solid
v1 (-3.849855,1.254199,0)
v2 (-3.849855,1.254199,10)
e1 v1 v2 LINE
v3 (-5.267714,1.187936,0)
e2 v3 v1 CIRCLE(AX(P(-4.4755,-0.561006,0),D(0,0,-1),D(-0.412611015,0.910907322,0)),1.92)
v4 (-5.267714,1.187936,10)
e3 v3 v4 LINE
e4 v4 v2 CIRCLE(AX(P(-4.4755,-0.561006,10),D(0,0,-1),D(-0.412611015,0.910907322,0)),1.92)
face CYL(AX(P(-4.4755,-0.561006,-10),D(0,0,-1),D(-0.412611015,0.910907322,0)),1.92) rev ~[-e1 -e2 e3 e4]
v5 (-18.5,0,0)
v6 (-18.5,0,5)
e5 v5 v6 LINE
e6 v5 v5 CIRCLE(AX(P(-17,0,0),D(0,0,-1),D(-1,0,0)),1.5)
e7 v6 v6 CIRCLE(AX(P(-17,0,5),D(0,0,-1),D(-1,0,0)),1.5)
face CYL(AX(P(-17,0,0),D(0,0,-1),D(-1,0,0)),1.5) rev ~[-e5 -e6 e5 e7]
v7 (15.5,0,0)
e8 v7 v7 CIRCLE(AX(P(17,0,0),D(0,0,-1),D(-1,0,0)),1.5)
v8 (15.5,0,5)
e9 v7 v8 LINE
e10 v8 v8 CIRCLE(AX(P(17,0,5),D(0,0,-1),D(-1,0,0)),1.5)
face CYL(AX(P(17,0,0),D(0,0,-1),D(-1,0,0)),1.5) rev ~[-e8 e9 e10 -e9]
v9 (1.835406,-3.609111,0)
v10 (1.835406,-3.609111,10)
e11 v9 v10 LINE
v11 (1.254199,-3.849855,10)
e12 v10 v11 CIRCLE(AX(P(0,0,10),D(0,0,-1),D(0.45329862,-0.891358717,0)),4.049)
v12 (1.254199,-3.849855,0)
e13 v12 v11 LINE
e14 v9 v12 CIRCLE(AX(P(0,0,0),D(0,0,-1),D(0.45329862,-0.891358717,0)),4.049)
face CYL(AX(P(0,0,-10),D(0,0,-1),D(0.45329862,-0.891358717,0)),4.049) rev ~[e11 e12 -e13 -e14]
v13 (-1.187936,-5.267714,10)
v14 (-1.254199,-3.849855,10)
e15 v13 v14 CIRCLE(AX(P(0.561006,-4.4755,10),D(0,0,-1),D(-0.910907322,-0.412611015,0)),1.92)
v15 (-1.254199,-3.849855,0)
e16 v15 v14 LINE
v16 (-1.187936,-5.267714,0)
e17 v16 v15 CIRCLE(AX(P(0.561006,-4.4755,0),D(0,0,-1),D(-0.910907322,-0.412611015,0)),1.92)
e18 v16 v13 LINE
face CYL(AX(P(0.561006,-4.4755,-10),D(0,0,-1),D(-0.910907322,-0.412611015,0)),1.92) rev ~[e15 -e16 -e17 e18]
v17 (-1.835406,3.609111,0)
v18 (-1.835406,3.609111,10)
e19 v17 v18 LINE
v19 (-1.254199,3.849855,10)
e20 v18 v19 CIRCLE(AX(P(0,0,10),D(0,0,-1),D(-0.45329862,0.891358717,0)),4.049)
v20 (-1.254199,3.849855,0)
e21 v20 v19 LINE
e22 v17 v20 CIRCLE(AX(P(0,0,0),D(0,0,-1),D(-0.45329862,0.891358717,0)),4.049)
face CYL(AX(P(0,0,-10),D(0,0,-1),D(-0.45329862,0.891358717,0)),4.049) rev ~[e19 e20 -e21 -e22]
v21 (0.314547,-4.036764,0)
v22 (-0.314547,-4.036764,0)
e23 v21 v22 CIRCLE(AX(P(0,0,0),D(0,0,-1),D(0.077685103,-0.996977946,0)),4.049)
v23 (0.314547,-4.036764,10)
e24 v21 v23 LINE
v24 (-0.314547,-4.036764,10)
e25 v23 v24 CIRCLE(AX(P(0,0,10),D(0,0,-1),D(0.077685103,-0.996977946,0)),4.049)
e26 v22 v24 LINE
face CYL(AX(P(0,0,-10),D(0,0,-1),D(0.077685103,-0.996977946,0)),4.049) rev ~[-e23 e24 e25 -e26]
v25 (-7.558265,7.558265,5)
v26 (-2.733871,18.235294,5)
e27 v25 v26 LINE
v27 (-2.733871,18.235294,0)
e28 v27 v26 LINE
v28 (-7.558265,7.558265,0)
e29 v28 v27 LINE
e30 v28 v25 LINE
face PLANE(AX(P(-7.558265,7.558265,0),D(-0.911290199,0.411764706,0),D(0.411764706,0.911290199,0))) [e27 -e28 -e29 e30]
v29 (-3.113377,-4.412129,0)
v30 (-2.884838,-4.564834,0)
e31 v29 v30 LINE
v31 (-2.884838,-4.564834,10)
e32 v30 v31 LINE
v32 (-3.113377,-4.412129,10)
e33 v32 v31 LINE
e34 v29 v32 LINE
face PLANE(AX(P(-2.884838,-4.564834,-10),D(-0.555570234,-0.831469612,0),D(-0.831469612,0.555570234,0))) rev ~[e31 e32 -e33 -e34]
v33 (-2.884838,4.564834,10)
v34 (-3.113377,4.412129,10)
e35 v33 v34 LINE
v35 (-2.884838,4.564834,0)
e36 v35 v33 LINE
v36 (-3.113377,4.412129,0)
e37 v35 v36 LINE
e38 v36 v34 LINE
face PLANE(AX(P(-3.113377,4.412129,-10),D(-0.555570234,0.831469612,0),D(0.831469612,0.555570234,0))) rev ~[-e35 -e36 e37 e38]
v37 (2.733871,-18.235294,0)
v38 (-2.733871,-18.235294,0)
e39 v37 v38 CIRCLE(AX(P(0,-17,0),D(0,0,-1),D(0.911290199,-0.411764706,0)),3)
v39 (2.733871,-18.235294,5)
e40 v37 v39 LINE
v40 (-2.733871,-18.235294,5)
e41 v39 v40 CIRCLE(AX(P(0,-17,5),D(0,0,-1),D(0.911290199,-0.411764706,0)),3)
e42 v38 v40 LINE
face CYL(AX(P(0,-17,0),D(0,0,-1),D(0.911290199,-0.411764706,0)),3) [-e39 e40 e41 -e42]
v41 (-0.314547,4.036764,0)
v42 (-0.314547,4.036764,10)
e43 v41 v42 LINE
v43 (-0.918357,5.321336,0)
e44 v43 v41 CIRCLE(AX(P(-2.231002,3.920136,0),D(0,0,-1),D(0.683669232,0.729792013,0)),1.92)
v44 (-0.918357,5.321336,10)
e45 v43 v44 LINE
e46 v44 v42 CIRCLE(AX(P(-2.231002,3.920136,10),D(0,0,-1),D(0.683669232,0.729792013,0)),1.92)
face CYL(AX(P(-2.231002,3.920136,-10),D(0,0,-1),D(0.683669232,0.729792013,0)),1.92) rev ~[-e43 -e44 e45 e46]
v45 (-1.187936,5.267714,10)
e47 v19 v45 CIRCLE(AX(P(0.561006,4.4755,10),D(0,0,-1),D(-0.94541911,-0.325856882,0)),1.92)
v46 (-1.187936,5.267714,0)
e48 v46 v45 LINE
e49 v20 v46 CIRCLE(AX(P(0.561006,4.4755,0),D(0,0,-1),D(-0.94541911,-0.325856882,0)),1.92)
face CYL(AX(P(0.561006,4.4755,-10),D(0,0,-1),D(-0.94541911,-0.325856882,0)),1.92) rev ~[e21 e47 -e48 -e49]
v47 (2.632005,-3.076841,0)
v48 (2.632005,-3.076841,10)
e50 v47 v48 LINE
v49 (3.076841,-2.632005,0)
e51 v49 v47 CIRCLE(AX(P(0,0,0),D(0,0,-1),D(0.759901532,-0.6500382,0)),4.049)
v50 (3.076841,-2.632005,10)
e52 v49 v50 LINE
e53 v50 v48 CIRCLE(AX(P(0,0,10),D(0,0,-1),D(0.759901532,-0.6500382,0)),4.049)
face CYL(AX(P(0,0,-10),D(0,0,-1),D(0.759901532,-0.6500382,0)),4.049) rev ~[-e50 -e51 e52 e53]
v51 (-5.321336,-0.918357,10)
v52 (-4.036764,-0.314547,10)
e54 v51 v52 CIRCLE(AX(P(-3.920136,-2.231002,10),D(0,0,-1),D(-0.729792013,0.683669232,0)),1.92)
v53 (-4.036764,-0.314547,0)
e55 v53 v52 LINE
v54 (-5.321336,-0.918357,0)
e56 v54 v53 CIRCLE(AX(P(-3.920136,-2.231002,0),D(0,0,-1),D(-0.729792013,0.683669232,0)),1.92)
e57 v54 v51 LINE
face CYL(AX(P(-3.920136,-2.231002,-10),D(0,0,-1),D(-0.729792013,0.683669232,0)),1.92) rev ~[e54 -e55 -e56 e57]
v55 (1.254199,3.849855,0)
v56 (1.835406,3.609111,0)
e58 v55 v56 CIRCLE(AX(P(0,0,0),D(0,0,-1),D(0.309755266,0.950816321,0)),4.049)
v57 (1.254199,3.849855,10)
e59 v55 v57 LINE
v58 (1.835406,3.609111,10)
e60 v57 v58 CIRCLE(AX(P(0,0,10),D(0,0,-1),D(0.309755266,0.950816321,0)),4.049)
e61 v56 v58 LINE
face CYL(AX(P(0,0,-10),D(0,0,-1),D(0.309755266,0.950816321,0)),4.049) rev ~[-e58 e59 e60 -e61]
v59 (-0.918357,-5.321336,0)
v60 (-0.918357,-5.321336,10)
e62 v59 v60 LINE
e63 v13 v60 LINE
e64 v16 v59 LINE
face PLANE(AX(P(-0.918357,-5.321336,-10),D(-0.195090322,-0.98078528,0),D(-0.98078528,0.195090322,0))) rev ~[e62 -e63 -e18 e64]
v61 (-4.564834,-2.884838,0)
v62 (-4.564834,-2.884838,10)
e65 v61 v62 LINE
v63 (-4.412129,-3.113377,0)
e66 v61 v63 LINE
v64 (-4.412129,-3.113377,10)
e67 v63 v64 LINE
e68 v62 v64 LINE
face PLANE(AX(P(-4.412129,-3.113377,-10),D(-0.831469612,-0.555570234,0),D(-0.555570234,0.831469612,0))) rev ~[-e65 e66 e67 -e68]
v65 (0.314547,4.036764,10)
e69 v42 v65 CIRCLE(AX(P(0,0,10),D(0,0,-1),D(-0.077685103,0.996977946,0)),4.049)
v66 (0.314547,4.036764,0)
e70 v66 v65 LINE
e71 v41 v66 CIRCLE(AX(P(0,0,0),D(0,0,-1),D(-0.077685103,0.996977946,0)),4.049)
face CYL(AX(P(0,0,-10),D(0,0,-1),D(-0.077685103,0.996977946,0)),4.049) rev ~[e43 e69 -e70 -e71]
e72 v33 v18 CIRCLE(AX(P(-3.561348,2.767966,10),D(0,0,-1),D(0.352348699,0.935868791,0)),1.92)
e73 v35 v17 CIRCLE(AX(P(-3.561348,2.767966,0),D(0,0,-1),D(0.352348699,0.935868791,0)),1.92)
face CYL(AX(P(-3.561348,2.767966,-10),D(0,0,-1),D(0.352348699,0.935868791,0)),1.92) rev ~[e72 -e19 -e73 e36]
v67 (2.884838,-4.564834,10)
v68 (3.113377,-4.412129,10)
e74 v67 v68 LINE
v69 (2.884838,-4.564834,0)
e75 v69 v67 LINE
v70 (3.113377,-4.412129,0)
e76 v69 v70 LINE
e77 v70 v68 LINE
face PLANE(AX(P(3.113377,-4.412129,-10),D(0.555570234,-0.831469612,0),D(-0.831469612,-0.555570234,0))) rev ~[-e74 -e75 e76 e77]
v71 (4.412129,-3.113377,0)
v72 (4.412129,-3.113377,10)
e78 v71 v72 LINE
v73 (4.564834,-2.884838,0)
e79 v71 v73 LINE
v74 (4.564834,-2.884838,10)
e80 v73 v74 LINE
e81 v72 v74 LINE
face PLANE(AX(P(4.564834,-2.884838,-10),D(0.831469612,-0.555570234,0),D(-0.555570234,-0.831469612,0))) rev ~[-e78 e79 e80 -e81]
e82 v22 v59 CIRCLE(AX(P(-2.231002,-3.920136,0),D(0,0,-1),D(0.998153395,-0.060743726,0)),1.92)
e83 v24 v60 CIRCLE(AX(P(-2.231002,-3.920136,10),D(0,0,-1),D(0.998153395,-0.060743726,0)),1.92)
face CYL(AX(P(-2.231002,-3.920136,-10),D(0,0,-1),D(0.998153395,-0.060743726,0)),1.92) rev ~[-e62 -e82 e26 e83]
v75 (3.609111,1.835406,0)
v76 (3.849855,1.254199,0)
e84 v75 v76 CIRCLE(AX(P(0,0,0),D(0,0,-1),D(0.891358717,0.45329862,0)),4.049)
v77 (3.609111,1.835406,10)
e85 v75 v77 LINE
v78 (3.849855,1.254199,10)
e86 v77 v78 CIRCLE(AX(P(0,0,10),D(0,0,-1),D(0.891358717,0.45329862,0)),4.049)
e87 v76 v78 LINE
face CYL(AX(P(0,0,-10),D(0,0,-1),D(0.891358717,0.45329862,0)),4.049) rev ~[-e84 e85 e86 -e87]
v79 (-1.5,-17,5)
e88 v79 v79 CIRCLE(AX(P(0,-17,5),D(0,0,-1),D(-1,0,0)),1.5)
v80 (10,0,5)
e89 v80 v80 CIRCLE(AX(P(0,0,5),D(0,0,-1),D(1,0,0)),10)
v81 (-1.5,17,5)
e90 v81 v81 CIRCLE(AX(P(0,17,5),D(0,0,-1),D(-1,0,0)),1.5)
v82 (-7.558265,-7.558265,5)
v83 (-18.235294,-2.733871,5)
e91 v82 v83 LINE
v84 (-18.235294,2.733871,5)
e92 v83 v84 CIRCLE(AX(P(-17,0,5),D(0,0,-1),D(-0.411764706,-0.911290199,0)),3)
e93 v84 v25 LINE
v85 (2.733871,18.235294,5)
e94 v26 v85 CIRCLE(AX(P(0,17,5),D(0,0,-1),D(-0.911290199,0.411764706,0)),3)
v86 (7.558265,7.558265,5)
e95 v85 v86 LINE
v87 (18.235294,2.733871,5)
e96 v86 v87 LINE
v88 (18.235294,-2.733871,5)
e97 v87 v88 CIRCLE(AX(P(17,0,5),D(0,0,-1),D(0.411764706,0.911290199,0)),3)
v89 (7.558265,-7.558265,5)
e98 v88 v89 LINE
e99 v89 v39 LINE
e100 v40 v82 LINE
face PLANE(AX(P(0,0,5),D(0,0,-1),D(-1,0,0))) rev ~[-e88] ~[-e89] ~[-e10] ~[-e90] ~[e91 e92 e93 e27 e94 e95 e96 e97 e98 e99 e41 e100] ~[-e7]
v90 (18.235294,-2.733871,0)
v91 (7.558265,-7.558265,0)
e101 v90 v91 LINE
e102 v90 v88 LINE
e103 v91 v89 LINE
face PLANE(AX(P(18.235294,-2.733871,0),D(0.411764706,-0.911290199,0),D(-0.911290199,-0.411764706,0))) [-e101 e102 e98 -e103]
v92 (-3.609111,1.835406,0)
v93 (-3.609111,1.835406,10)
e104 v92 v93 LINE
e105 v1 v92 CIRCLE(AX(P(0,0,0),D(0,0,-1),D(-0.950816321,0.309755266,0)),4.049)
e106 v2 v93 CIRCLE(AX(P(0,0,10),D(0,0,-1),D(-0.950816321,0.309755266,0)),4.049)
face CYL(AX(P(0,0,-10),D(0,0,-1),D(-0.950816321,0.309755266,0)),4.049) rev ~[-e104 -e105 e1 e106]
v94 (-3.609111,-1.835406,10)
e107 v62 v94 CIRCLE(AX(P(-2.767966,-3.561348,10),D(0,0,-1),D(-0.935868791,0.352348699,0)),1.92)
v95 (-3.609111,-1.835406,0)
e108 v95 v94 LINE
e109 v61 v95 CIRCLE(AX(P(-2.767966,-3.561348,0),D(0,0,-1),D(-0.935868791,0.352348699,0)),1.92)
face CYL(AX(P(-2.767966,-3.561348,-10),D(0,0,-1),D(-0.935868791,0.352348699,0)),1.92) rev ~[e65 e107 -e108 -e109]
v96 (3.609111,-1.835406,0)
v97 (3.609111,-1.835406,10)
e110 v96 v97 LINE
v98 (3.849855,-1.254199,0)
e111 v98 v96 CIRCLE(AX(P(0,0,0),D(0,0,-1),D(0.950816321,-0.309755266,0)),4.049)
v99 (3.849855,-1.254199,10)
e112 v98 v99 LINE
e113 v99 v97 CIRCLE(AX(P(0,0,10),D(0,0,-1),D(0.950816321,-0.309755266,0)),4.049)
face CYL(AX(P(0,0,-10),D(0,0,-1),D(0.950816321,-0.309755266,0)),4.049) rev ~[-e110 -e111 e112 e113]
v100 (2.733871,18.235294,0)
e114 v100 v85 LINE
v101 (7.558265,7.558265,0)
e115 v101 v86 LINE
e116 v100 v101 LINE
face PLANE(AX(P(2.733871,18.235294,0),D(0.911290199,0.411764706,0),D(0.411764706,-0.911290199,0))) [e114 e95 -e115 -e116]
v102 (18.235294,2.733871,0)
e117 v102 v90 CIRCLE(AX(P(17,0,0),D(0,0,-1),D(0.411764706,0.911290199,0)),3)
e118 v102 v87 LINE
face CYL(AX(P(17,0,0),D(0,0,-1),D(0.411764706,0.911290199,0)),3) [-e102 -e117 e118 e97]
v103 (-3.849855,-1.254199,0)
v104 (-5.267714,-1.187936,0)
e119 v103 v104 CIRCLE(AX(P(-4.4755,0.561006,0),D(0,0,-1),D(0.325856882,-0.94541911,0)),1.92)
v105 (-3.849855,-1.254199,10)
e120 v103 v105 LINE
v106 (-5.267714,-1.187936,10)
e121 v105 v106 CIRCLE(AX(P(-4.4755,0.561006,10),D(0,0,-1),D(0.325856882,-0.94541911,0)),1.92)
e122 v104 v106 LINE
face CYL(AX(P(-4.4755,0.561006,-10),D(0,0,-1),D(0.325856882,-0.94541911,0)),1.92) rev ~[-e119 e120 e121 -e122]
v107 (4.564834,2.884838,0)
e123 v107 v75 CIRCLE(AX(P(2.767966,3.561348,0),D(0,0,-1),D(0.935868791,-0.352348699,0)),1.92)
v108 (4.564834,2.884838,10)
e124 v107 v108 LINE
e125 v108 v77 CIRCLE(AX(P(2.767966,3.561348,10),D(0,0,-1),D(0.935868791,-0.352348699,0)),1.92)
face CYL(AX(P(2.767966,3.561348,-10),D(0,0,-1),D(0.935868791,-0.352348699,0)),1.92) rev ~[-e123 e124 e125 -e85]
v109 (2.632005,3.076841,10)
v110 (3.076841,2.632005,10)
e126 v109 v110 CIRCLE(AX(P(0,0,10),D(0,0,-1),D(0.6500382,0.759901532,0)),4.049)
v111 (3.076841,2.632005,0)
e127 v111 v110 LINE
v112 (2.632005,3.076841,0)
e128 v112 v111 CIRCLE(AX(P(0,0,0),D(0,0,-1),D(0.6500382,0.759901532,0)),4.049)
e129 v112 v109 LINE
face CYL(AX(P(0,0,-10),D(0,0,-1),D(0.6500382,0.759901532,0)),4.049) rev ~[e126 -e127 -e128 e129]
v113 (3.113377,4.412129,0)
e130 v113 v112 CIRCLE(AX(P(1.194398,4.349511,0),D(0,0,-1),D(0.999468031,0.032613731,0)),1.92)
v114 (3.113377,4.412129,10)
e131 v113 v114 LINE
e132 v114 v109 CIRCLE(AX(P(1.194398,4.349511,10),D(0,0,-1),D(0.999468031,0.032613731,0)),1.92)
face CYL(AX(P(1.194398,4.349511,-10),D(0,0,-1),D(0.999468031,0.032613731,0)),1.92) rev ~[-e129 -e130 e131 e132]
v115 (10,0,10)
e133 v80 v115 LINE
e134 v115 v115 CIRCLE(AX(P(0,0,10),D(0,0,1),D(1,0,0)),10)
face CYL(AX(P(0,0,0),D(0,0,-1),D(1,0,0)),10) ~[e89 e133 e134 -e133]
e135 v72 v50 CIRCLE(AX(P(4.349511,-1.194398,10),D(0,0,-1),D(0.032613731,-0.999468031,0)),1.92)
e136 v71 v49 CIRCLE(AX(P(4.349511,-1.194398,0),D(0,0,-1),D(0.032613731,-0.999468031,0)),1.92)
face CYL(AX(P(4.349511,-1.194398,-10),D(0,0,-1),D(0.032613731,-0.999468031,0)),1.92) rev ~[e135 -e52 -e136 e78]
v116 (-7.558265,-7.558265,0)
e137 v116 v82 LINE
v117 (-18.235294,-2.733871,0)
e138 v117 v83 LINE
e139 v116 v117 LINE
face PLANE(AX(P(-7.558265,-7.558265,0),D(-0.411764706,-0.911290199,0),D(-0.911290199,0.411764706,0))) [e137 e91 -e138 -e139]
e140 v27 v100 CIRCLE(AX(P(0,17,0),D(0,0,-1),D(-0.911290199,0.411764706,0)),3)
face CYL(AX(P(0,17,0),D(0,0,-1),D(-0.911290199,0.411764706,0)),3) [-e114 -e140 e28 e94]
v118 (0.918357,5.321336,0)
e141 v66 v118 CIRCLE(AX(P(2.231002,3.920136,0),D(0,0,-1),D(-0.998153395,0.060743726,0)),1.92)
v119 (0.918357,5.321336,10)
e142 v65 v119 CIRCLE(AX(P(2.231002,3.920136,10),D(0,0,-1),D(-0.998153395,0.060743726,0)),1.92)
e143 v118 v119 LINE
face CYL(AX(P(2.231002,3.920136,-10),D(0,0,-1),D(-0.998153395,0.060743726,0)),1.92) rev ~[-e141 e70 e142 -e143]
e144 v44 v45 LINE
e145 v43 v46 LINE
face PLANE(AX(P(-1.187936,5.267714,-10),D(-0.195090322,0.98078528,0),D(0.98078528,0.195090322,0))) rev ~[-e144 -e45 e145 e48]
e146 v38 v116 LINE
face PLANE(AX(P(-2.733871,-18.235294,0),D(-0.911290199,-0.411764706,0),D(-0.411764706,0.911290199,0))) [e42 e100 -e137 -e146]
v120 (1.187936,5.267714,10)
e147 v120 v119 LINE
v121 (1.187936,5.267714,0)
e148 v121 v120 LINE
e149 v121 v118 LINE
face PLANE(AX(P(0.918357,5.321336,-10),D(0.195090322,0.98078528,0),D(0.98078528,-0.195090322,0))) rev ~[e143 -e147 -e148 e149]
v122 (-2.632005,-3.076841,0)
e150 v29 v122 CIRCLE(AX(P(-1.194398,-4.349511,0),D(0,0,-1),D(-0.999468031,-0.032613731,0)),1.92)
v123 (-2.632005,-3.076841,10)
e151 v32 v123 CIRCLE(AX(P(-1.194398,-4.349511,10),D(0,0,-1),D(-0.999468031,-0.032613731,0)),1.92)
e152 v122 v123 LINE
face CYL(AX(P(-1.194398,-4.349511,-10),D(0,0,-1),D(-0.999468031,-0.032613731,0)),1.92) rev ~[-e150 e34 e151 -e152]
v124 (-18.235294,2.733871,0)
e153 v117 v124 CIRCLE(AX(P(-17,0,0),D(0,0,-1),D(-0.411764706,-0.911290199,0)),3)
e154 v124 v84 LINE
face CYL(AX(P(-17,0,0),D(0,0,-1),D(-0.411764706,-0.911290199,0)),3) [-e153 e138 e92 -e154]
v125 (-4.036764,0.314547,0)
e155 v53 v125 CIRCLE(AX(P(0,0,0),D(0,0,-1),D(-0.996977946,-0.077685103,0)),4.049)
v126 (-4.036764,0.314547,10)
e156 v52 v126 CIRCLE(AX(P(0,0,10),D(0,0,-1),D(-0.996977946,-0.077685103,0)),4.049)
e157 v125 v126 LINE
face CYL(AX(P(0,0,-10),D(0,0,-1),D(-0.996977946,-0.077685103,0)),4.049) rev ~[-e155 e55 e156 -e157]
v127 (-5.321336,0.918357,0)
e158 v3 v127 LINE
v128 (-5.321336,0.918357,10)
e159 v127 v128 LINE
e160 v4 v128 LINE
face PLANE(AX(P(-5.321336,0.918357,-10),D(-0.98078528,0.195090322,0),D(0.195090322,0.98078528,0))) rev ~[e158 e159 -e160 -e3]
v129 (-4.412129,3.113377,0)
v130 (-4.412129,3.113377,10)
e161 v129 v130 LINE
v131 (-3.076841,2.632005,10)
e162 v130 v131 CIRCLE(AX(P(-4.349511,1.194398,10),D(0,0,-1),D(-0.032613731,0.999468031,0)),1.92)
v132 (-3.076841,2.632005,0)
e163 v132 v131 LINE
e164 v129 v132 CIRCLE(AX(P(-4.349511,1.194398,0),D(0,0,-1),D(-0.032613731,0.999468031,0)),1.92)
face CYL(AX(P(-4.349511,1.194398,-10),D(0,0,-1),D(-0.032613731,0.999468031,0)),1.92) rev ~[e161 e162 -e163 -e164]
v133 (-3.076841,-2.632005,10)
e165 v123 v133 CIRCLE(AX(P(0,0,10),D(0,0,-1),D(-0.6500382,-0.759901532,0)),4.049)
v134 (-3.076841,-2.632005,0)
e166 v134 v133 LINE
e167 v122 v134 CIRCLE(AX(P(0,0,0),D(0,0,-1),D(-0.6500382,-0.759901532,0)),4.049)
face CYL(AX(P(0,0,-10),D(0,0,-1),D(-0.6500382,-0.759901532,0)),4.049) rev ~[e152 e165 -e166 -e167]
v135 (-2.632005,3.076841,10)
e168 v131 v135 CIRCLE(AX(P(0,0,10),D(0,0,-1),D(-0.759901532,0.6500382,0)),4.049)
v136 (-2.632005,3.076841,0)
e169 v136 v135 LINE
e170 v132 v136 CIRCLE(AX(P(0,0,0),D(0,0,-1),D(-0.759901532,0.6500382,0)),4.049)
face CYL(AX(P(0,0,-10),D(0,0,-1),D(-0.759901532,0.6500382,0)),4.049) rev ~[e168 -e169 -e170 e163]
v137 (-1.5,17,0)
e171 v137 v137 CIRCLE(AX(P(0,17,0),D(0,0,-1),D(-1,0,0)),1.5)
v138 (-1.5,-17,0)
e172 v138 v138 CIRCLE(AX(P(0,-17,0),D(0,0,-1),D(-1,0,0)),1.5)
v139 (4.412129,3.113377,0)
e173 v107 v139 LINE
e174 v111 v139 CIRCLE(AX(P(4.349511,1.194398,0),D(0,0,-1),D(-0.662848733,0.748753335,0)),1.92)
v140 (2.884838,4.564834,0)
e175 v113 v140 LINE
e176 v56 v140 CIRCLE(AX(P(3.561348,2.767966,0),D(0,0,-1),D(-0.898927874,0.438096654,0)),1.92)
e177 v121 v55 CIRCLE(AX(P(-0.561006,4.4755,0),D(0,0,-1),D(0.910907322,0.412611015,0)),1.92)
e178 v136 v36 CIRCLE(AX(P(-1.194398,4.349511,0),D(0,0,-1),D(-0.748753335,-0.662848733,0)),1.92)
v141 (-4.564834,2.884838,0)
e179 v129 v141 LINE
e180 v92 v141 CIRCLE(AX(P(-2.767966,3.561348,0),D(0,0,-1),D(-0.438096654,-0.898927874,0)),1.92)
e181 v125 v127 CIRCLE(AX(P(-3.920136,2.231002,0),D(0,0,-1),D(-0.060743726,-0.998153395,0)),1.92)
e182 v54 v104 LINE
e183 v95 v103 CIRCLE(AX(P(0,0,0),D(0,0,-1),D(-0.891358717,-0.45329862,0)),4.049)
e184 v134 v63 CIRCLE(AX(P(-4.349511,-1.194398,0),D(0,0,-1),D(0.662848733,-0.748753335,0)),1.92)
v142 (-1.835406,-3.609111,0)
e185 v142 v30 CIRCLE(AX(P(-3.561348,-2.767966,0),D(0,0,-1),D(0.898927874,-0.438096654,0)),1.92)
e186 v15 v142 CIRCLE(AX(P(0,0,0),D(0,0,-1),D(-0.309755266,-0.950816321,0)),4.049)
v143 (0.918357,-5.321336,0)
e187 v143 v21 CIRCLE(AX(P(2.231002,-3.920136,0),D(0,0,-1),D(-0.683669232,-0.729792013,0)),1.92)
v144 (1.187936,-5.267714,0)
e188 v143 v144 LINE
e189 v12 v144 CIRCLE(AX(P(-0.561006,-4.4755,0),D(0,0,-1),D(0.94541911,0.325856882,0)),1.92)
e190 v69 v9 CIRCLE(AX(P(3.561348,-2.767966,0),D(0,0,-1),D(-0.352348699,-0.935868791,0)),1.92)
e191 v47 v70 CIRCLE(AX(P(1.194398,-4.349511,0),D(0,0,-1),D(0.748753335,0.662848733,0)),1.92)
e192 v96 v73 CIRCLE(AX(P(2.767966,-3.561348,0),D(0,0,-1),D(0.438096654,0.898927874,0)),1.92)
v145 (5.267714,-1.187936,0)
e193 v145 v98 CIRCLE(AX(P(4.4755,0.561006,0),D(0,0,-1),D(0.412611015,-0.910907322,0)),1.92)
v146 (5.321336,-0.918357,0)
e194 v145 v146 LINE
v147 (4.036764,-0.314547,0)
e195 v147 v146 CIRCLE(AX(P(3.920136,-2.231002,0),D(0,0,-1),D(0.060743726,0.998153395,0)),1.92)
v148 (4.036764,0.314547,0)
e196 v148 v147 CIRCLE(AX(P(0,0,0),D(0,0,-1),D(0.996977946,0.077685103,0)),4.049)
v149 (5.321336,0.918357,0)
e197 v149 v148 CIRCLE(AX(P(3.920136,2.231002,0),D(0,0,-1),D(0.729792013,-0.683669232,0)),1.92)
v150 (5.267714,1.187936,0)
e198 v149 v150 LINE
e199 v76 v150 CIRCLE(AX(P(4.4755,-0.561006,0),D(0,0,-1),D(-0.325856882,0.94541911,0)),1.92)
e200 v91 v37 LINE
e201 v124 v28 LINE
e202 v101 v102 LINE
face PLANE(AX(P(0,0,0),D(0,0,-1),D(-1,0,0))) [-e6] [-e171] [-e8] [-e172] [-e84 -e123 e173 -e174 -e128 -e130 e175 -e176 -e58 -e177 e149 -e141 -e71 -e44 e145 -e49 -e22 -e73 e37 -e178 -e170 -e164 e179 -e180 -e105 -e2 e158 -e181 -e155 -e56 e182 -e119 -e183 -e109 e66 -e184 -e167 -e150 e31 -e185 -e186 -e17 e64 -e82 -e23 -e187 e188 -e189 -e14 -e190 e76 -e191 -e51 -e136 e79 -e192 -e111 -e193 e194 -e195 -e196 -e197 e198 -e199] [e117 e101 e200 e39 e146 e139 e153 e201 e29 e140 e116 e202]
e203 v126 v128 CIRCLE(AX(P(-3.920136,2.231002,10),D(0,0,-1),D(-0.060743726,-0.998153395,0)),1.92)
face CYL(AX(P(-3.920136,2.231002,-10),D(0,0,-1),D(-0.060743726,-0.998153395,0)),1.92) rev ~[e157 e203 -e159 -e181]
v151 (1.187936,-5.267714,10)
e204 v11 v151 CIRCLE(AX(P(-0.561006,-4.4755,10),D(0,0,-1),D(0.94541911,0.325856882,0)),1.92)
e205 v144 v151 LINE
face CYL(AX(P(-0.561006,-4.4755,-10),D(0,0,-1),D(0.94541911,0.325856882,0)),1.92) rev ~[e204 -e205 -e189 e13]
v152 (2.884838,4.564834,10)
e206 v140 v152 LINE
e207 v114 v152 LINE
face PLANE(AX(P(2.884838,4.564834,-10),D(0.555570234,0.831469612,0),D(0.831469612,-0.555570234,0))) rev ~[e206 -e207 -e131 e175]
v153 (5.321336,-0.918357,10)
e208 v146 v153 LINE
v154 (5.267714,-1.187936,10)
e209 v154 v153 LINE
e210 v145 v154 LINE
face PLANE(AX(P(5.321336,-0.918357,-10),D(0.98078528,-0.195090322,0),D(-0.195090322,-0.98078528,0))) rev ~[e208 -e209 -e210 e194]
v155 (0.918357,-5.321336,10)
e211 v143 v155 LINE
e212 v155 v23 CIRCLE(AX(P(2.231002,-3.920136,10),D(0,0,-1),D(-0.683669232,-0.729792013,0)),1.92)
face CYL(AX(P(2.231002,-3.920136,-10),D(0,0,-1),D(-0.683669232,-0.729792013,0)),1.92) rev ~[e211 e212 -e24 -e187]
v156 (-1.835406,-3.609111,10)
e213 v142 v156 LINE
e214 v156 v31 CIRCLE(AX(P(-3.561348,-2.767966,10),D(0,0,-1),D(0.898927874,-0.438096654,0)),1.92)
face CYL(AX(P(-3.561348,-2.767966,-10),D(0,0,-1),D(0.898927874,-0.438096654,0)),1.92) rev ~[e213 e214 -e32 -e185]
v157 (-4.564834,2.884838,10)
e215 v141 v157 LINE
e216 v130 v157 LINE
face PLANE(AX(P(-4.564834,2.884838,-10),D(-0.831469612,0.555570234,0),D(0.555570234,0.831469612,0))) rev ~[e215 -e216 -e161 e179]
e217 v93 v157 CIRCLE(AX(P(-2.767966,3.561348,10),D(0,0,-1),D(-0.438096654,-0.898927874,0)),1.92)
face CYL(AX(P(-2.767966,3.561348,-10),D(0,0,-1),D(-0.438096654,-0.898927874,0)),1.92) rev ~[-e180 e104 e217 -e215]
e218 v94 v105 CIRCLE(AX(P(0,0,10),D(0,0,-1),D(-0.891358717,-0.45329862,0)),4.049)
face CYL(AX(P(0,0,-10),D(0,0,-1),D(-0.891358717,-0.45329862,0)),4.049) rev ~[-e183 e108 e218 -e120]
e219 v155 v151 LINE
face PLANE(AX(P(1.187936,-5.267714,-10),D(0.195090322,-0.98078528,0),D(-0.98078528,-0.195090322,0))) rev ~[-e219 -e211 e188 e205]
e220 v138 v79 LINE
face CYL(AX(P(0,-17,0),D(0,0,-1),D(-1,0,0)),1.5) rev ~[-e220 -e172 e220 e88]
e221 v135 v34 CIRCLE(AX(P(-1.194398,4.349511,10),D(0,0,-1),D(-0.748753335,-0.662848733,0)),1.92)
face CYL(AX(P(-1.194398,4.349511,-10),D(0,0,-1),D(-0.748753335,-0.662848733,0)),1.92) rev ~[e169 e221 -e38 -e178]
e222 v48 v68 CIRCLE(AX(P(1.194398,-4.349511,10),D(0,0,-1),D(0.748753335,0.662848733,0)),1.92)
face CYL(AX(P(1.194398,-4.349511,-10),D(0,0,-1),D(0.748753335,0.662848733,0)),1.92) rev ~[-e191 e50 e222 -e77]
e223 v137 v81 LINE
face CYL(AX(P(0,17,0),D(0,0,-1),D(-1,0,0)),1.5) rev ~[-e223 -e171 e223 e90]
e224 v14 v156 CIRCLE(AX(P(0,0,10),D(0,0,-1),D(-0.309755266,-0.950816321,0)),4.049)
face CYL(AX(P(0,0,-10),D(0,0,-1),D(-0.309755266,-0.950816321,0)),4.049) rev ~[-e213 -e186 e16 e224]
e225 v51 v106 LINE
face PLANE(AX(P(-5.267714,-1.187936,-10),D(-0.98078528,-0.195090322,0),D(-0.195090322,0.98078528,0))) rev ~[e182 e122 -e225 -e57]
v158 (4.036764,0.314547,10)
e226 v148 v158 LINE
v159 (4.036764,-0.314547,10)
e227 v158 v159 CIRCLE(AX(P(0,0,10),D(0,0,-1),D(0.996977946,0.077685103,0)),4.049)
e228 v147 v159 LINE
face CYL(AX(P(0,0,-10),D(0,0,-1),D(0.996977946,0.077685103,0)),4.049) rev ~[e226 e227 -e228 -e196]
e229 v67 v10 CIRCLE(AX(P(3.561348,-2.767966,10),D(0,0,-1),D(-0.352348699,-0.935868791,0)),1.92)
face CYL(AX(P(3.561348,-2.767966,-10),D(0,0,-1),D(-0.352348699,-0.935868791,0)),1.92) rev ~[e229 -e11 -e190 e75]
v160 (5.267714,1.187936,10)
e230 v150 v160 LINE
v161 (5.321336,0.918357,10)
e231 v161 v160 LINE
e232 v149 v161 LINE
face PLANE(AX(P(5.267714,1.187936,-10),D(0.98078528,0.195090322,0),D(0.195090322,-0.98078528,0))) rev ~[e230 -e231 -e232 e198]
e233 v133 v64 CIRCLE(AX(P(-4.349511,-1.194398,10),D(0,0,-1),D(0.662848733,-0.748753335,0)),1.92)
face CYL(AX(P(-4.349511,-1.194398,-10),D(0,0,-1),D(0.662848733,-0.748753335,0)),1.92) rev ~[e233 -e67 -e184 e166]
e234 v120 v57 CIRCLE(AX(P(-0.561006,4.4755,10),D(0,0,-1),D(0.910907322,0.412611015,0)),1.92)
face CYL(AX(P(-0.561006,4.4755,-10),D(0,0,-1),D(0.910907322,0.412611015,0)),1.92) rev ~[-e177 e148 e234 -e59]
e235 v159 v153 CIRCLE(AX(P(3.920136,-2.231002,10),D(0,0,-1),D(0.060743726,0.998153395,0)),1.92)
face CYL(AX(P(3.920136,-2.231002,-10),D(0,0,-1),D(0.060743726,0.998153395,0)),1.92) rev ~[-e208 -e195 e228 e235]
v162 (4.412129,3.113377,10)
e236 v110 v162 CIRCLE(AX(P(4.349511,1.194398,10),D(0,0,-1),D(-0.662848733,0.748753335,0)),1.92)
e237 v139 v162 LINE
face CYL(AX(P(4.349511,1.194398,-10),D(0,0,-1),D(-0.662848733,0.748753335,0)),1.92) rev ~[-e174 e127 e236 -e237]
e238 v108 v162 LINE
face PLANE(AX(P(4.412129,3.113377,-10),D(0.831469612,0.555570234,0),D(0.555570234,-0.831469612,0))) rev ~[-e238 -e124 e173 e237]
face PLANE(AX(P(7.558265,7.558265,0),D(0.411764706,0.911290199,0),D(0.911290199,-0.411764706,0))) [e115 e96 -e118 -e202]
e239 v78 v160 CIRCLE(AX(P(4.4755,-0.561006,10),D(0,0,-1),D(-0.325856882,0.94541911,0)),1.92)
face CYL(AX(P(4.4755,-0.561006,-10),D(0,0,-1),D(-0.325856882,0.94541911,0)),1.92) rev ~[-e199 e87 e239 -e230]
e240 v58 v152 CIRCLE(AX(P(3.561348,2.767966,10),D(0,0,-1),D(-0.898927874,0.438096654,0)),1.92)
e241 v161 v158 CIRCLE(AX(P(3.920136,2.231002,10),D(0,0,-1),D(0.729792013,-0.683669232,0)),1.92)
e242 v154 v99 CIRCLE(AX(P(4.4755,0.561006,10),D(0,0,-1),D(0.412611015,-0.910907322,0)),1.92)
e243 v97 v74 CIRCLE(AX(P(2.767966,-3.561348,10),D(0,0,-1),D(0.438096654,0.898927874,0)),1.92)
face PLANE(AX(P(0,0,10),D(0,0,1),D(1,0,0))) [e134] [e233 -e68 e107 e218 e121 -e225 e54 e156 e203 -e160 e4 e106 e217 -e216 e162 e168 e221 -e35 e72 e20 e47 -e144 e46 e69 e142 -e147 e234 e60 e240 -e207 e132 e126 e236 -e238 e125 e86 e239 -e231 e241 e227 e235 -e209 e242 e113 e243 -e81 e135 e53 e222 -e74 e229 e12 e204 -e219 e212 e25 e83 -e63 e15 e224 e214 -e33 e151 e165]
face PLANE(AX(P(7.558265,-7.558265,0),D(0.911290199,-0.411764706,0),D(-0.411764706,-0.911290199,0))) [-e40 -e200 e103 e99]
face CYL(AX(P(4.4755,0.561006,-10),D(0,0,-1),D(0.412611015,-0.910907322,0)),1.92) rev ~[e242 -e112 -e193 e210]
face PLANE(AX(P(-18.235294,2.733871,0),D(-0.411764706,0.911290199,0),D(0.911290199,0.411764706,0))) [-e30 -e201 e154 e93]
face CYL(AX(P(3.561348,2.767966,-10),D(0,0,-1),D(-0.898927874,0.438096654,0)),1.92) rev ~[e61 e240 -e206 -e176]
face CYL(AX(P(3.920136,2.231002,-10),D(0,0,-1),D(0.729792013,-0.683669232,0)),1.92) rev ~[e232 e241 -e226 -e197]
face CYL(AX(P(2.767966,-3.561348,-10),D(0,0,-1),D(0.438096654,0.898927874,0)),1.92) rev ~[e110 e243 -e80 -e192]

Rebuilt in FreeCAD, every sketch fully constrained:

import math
import FreeCAD as App
import Part
import Sketcher

V = App.Vector
Q = App.Units.Quantity

doc = App.newDocument("Part")
body = doc.addObject("PartDesign::Body", "Body")

# Sketch on XY plane
sketch1 = body.newObject("Sketcher::SketchObject", "Sketch")
sketch1.AttachmentSupport = (doc.getObject("XY_Plane"), [""])
sketch1.MapMode = "FlatFace"
sketch1.addGeometry([
    Part.Circle(V(0, 0, 0), V(0, 0, 1), 10),
    Part.Circle(V(0, 0, 0), V(0, 0, 1), 2),
], False)
sketch1.addConstraint([
    Sketcher.Constraint("Coincident", 0, 3, -1, 1),
    Sketcher.Constraint("Coincident", 1, 3, -1, 1),
    Sketcher.Constraint("Diameter", 0, 20.0),
    Sketcher.Constraint("Diameter", 1, 4.0),
])
pad1 = body.newObject("PartDesign::Pad", "Pad")
pad1.Profile = sketch1
pad1.Length = 10

# Sketch on XY plane
sketch2 = body.newObject("Sketcher::SketchObject", "Sketch001")
sketch2.AttachmentSupport = (doc.getObject("XY_Plane"), [""])
sketch2.MapMode = "FlatFace"
sketch2.AttachmentOffset = App.Placement(V(0, 0, 10), App.Rotation())
sketch2.addGeometry([
    Part.LineSegment(V(1.187936, 5.267714, 0), V(0.918357, 5.321336, 0)),  # 0
    Part.ArcOfCircle(Part.Circle(V(2.231002, 3.920136, 0), V(0, 0, 1), 1.92), math.radians(133.131039), math.radians(176.517497)),  # 1
    Part.ArcOfCircle(Part.Circle(V(0, 0, 0), V(0, 0, 1), 4.049), math.radians(85.544482), math.radians(94.455518)),  # 2
    Part.ArcOfCircle(Part.Circle(V(-2.231002, 3.920136, 0), V(0, 0, 1), 1.92), math.radians(3.482503), math.radians(46.868961)),  # 3
    Part.LineSegment(V(-0.918357, 5.321336, 0), V(-1.187936, 5.267714, 0)),  # 4
    Part.ArcOfCircle(Part.Circle(V(0.561006, 4.4755, 0), V(0, 0, 1), 1.92), math.radians(155.631039), math.radians(199.017497)),  # 5
    Part.ArcOfCircle(Part.Circle(V(0, 0, 0), V(0, 0, 1), 4.049), math.radians(108.044482), math.radians(116.955518)),  # 6
    Part.ArcOfCircle(Part.Circle(V(-3.561348, 2.767966, 0), V(0, 0, 1), 1.92), math.radians(25.982503), math.radians(69.368961)),  # 7
    Part.LineSegment(V(-2.884838, 4.564834, 0), V(-3.113377, 4.412129, 0)),  # 8
    Part.ArcOfCircle(Part.Circle(V(-1.194398, 4.349511, 0), V(0, 0, 1), 1.92), math.radians(178.131039), math.radians(221.517497)),  # 9
    Part.ArcOfCircle(Part.Circle(V(0, 0, 0), V(0, 0, 1), 4.049), math.radians(130.544482), math.radians(139.455518)),  # 10
    Part.ArcOfCircle(Part.Circle(V(-4.349511, 1.194398, 0), V(0, 0, 1), 1.92), math.radians(48.482503), math.radians(91.868961)),  # 11
    Part.LineSegment(V(-4.412129, 3.113377, 0), V(-4.564834, 2.884838, 0)),  # 12
    Part.ArcOfCircle(Part.Circle(V(-2.767966, 3.561348, 0), V(0, 0, 1), 1.92), math.radians(-159.368961), math.radians(-115.982503)),  # 13
    Part.ArcOfCircle(Part.Circle(V(0, 0, 0), V(0, 0, 1), 4.049), math.radians(153.044482), math.radians(161.955518)),  # 14
    Part.ArcOfCircle(Part.Circle(V(-4.4755, -0.561006, 0), V(0, 0, 1), 1.92), math.radians(70.982503), math.radians(114.368961)),  # 15
    Part.LineSegment(V(-5.267714, 1.187936, 0), V(-5.321336, 0.918357, 0)),  # 16
    Part.ArcOfCircle(Part.Circle(V(-3.920136, 2.231002, 0), V(0, 0, 1), 1.92), math.radians(-136.868961), math.radians(-93.482503)),  # 17
    Part.ArcOfCircle(Part.Circle(V(0, 0, 0), V(0, 0, 1), 4.049), math.radians(175.544482), math.radians(184.455518)),  # 18
    Part.ArcOfCircle(Part.Circle(V(-3.920136, -2.231002, 0), V(0, 0, 1), 1.92), math.radians(93.482503), math.radians(136.868961)),  # 19
    Part.LineSegment(V(-5.321336, -0.918357, 0), V(-5.267714, -1.187936, 0)),  # 20
    Part.ArcOfCircle(Part.Circle(V(-4.4755, 0.561006, 0), V(0, 0, 1), 1.92), math.radians(-114.368961), math.radians(-70.982503)),  # 21
    Part.ArcOfCircle(Part.Circle(V(0, 0, 0), V(0, 0, 1), 4.049), math.radians(-161.955518), math.radians(-153.044482)),  # 22
    Part.ArcOfCircle(Part.Circle(V(-2.767966, -3.561348, 0), V(0, 0, 1), 1.92), math.radians(115.982503), math.radians(159.368961)),  # 23
    Part.LineSegment(V(-4.564834, -2.884838, 0), V(-4.412129, -3.113377, 0)),  # 24
    Part.ArcOfCircle(Part.Circle(V(-4.349511, -1.194398, 0), V(0, 0, 1), 1.92), math.radians(-91.868961), math.radians(-48.482503)),  # 25
    Part.ArcOfCircle(Part.Circle(V(0, 0, 0), V(0, 0, 1), 4.049), math.radians(-139.455518), math.radians(-130.544482)),  # 26
    Part.ArcOfCircle(Part.Circle(V(-1.194398, -4.349511, 0), V(0, 0, 1), 1.92), math.radians(138.482503), math.radians(181.868961)),  # 27
    Part.LineSegment(V(-3.113377, -4.412129, 0), V(-2.884838, -4.564834, 0)),  # 28
    Part.ArcOfCircle(Part.Circle(V(-3.561348, -2.767966, 0), V(0, 0, 1), 1.92), math.radians(-69.368961), math.radians(-25.982503)),  # 29
    Part.ArcOfCircle(Part.Circle(V(0, 0, 0), V(0, 0, 1), 4.049), math.radians(-116.955518), math.radians(-108.044482)),  # 30
    Part.ArcOfCircle(Part.Circle(V(0.561006, -4.4755, 0), V(0, 0, 1), 1.92), math.radians(160.982503), math.radians(204.368961)),  # 31
    Part.LineSegment(V(-1.187936, -5.267714, 0), V(-0.918357, -5.321336, 0)),  # 32
    Part.ArcOfCircle(Part.Circle(V(-2.231002, -3.920136, 0), V(0, 0, 1), 1.92), math.radians(-46.868961), math.radians(-3.482503)),  # 33
    Part.ArcOfCircle(Part.Circle(V(0, 0, 0), V(0, 0, 1), 4.049), math.radians(-94.455518), math.radians(-85.544482)),  # 34
    Part.ArcOfCircle(Part.Circle(V(2.231002, -3.920136, 0), V(0, 0, 1), 1.92), math.radians(-176.517497), math.radians(-133.131039)),  # 35
    Part.LineSegment(V(0.918357, -5.321336, 0), V(1.187936, -5.267714, 0)),  # 36
    Part.ArcOfCircle(Part.Circle(V(-0.561006, -4.4755, 0), V(0, 0, 1), 1.92), math.radians(-24.368961), math.radians(19.017497)),  # 37
    Part.ArcOfCircle(Part.Circle(V(0, 0, 0), V(0, 0, 1), 4.049), math.radians(-71.955518), math.radians(-63.044482)),  # 38
    Part.ArcOfCircle(Part.Circle(V(3.561348, -2.767966, 0), V(0, 0, 1), 1.92), math.radians(-154.017497), math.radians(-110.631039)),  # 39
    Part.LineSegment(V(2.884838, -4.564834, 0), V(3.113377, -4.412129, 0)),  # 40
    Part.ArcOfCircle(Part.Circle(V(1.194398, -4.349511, 0), V(0, 0, 1), 1.92), math.radians(-1.868961), math.radians(41.517497)),  # 41
    Part.ArcOfCircle(Part.Circle(V(0, 0, 0), V(0, 0, 1), 4.049), math.radians(-49.455518), math.radians(-40.544482)),  # 42
    Part.ArcOfCircle(Part.Circle(V(4.349511, -1.194398, 0), V(0, 0, 1), 1.92), math.radians(-131.517497), math.radians(-88.131039)),  # 43
    Part.LineSegment(V(4.412129, -3.113377, 0), V(4.564834, -2.884838, 0)),  # 44
    Part.ArcOfCircle(Part.Circle(V(2.767966, -3.561348, 0), V(0, 0, 1), 1.92), math.radians(20.631039), math.radians(64.017497)),  # 45
    Part.ArcOfCircle(Part.Circle(V(0, 0, 0), V(0, 0, 1), 4.049), math.radians(-26.955518), math.radians(-18.044482)),  # 46
    Part.ArcOfCircle(Part.Circle(V(4.4755, 0.561006, 0), V(0, 0, 1), 1.92), math.radians(-109.017497), math.radians(-65.631039)),  # 47
    Part.LineSegment(V(5.267714, -1.187936, 0), V(5.321336, -0.918357, 0)),  # 48
    Part.ArcOfCircle(Part.Circle(V(3.920136, -2.231002, 0), V(0, 0, 1), 1.92), math.radians(43.131039), math.radians(86.517497)),  # 49
    Part.ArcOfCircle(Part.Circle(V(0, 0, 0), V(0, 0, 1), 4.049), math.radians(-4.455518), math.radians(4.455518)),  # 50
    Part.ArcOfCircle(Part.Circle(V(3.920136, 2.231002, 0), V(0, 0, 1), 1.92), math.radians(-86.517497), math.radians(-43.131039)),  # 51
    Part.LineSegment(V(5.321336, 0.918357, 0), V(5.267714, 1.187936, 0)),  # 52
    Part.ArcOfCircle(Part.Circle(V(4.4755, -0.561006, 0), V(0, 0, 1), 1.92), math.radians(65.631039), math.radians(109.017497)),  # 53
    Part.ArcOfCircle(Part.Circle(V(0, 0, 0), V(0, 0, 1), 4.049), math.radians(18.044482), math.radians(26.955518)),  # 54
    Part.ArcOfCircle(Part.Circle(V(2.767966, 3.561348, 0), V(0, 0, 1), 1.92), math.radians(-64.017497), math.radians(-20.631039)),  # 55
    Part.LineSegment(V(4.564834, 2.884838, 0), V(4.412129, 3.113377, 0)),  # 56
    Part.ArcOfCircle(Part.Circle(V(4.349511, 1.194398, 0), V(0, 0, 1), 1.92), math.radians(88.131039), math.radians(131.517497)),  # 57
    Part.ArcOfCircle(Part.Circle(V(0, 0, 0), V(0, 0, 1), 4.049), math.radians(40.544482), math.radians(49.455518)),  # 58
    Part.ArcOfCircle(Part.Circle(V(1.194398, 4.349511, 0), V(0, 0, 1), 1.92), math.radians(-41.517497), math.radians(1.868961)),  # 59
    Part.LineSegment(V(3.113377, 4.412129, 0), V(2.884838, 4.564834, 0)),  # 60
    Part.ArcOfCircle(Part.Circle(V(3.561348, 2.767966, 0), V(0, 0, 1), 1.92), math.radians(110.631039), math.radians(154.017497)),  # 61
    Part.ArcOfCircle(Part.Circle(V(0, 0, 0), V(0, 0, 1), 4.049), math.radians(63.044482), math.radians(71.955518)),  # 62
    Part.ArcOfCircle(Part.Circle(V(-0.561006, 4.4755, 0), V(0, 0, 1), 1.92), math.radians(-19.017497), math.radians(24.368961)),  # 63
], False)
sketch2.addConstraint([
    Sketcher.Constraint("Coincident", 0, 2, 1, 1),
    Sketcher.Constraint("Coincident", 1, 2, 2, 1),
    Sketcher.Constraint("Coincident", 2, 2, 3, 1),
    Sketcher.Constraint("Coincident", 3, 2, 4, 1),
    Sketcher.Constraint("Coincident", 4, 2, 5, 1),
    Sketcher.Constraint("Coincident", 5, 2, 6, 1),
    Sketcher.Constraint("Coincident", 6, 2, 7, 1),
    Sketcher.Constraint("Coincident", 7, 2, 8, 1),
    Sketcher.Constraint("Coincident", 8, 2, 9, 1),
    Sketcher.Constraint("Coincident", 9, 2, 10, 1),
    Sketcher.Constraint("Coincident", 10, 2, 11, 1),
    Sketcher.Constraint("Coincident", 11, 2, 12, 1),
    Sketcher.Constraint("Coincident", 12, 2, 13, 1),
    Sketcher.Constraint("Coincident", 13, 2, 14, 1),
    Sketcher.Constraint("Coincident", 14, 2, 15, 1),
    Sketcher.Constraint("Coincident", 15, 2, 16, 1),
    Sketcher.Constraint("Coincident", 16, 2, 17, 1),
    Sketcher.Constraint("Coincident", 17, 2, 18, 1),
    Sketcher.Constraint("Coincident", 18, 2, 19, 1),
    Sketcher.Constraint("Coincident", 19, 2, 20, 1),
    Sketcher.Constraint("Coincident", 20, 2, 21, 1),
    Sketcher.Constraint("Coincident", 21, 2, 22, 1),
    Sketcher.Constraint("Coincident", 22, 2, 23, 1),
    Sketcher.Constraint("Coincident", 23, 2, 24, 1),
    Sketcher.Constraint("Coincident", 24, 2, 25, 1),
    Sketcher.Constraint("Coincident", 25, 2, 26, 1),
    Sketcher.Constraint("Coincident", 26, 2, 27, 1),
    Sketcher.Constraint("Coincident", 27, 2, 28, 1),
    Sketcher.Constraint("Coincident", 28, 2, 29, 1),
    Sketcher.Constraint("Coincident", 29, 2, 30, 1),
    Sketcher.Constraint("Coincident", 30, 2, 31, 1),
    Sketcher.Constraint("Coincident", 31, 2, 32, 1),
    Sketcher.Constraint("Coincident", 32, 2, 33, 1),
    Sketcher.Constraint("Coincident", 33, 2, 34, 1),
    Sketcher.Constraint("Coincident", 34, 2, 35, 1),
    Sketcher.Constraint("Coincident", 35, 2, 36, 1),
    Sketcher.Constraint("Coincident", 36, 2, 37, 1),
    Sketcher.Constraint("Coincident", 37, 2, 38, 1),
    Sketcher.Constraint("Coincident", 38, 2, 39, 1),
    Sketcher.Constraint("Coincident", 39, 2, 40, 1),
    Sketcher.Constraint("Coincident", 40, 2, 41, 1),
    Sketcher.Constraint("Coincident", 41, 2, 42, 1),
    Sketcher.Constraint("Coincident", 42, 2, 43, 1),
    Sketcher.Constraint("Coincident", 43, 2, 44, 1),
    Sketcher.Constraint("Coincident", 44, 2, 45, 1),
    Sketcher.Constraint("Coincident", 45, 2, 46, 1),
    Sketcher.Constraint("Coincident", 46, 2, 47, 1),
    Sketcher.Constraint("Coincident", 47, 2, 48, 1),
    Sketcher.Constraint("Coincident", 48, 2, 49, 1),
    Sketcher.Constraint("Coincident", 49, 2, 50, 1),
    Sketcher.Constraint("Coincident", 50, 2, 51, 1),
    Sketcher.Constraint("Coincident", 51, 2, 52, 1),
    Sketcher.Constraint("Coincident", 52, 2, 53, 1),
    Sketcher.Constraint("Coincident", 53, 2, 54, 1),
    Sketcher.Constraint("Coincident", 54, 2, 55, 1),
    Sketcher.Constraint("Coincident", 55, 2, 56, 1),
    Sketcher.Constraint("Coincident", 56, 2, 57, 1),
    Sketcher.Constraint("Coincident", 57, 2, 58, 1),
    Sketcher.Constraint("Coincident", 58, 2, 59, 1),
    Sketcher.Constraint("Coincident", 59, 2, 60, 1),
    Sketcher.Constraint("Coincident", 60, 2, 61, 1),
    Sketcher.Constraint("Coincident", 61, 2, 62, 1),
    Sketcher.Constraint("Coincident", 62, 2, 63, 1),
    Sketcher.Constraint("Coincident", 63, 2, 0, 1),
    Sketcher.Constraint("Coincident", 2, 3, -1, 1),
    Sketcher.Constraint("Coincident", 6, 3, -1, 1),
    Sketcher.Constraint("Coincident", 10, 3, -1, 1),
    Sketcher.Constraint("Coincident", 14, 3, -1, 1),
    Sketcher.Constraint("Coincident", 18, 3, -1, 1),
    Sketcher.Constraint("Coincident", 22, 3, -1, 1),
    Sketcher.Constraint("Coincident", 26, 3, -1, 1),
    Sketcher.Constraint("Coincident", 30, 3, -1, 1),
    Sketcher.Constraint("Coincident", 34, 3, -1, 1),
    Sketcher.Constraint("Coincident", 38, 3, -1, 1),
    Sketcher.Constraint("Coincident", 42, 3, -1, 1),
    Sketcher.Constraint("Coincident", 46, 3, -1, 1),
    Sketcher.Constraint("Coincident", 50, 3, -1, 1),
    Sketcher.Constraint("Coincident", 54, 3, -1, 1),
    Sketcher.Constraint("Coincident", 58, 3, -1, 1),
    Sketcher.Constraint("Coincident", 62, 3, -1, 1),
    Sketcher.Constraint("Equal", 1, 3),
    Sketcher.Constraint("Equal", 3, 5),
    Sketcher.Constraint("Equal", 2, 6),
    Sketcher.Constraint("Equal", 5, 7),
    Sketcher.Constraint("Equal", 7, 9),
    Sketcher.Constraint("Equal", 6, 10),
    Sketcher.Constraint("Equal", 9, 11),
    Sketcher.Constraint("Equal", 11, 13),
    Sketcher.Constraint("Equal", 10, 14),
    Sketcher.Constraint("Equal", 13, 15),
    Sketcher.Constraint("Equal", 15, 17),
    Sketcher.Constraint("Equal", 14, 18),
    Sketcher.Constraint("Equal", 17, 19),
    Sketcher.Constraint("Equal", 19, 21),
    Sketcher.Constraint("Equal", 18, 22),
    Sketcher.Constraint("Equal", 21, 23),
    Sketcher.Constraint("Equal", 23, 25),
    Sketcher.Constraint("Equal", 22, 26),
    Sketcher.Constraint("Equal", 25, 27),
    Sketcher.Constraint("Equal", 27, 29),
    Sketcher.Constraint("Equal", 26, 30),
    Sketcher.Constraint("Equal", 29, 31),
    Sketcher.Constraint("Equal", 31, 33),
    Sketcher.Constraint("Equal", 30, 34),
    Sketcher.Constraint("Equal", 33, 35),
    Sketcher.Constraint("Equal", 35, 37),
    Sketcher.Constraint("Equal", 34, 38),
    Sketcher.Constraint("Equal", 37, 39),
    Sketcher.Constraint("Equal", 39, 41),
    Sketcher.Constraint("Equal", 38, 42),
    Sketcher.Constraint("Equal", 41, 43),
    Sketcher.Constraint("Equal", 43, 45),
    Sketcher.Constraint("Equal", 42, 46),
    Sketcher.Constraint("Equal", 45, 47),
    Sketcher.Constraint("Equal", 47, 49),
    Sketcher.Constraint("Equal", 46, 50),
    Sketcher.Constraint("Equal", 49, 51),
    Sketcher.Constraint("Equal", 51, 53),
    Sketcher.Constraint("Equal", 50, 54),
    Sketcher.Constraint("Equal", 53, 55),
    Sketcher.Constraint("Equal", 55, 57),
    Sketcher.Constraint("Equal", 54, 58),
    Sketcher.Constraint("Equal", 57, 59),
    Sketcher.Constraint("Equal", 59, 61),
    Sketcher.Constraint("Equal", 58, 62),
    Sketcher.Constraint("Equal", 61, 63),
    Sketcher.Constraint("Symmetric", 1, 3, 33, 3, -1, 1),
    Sketcher.Constraint("Symmetric", 3, 3, 35, 3, -1, 1),
    Sketcher.Constraint("Symmetric", 5, 3, 37, 3, -1, 1),
    Sketcher.Constraint("Symmetric", 7, 3, 39, 3, -1, 1),
    Sketcher.Constraint("Symmetric", 9, 3, 41, 3, -1, 1),
    Sketcher.Constraint("Symmetric", 11, 3, 43, 3, -1, 1),
    Sketcher.Constraint("Symmetric", 13, 3, 45, 3, -1, 1),
    Sketcher.Constraint("Symmetric", 15, 3, 47, 3, -1, 1),
    Sketcher.Constraint("Symmetric", 17, 3, 49, 3, -1, 1),
    Sketcher.Constraint("Symmetric", 19, 3, 51, 3, -1, 1),
    Sketcher.Constraint("Symmetric", 21, 3, 53, 3, -1, 1),
    Sketcher.Constraint("Symmetric", 23, 3, 55, 3, -1, 1),
    Sketcher.Constraint("Symmetric", 25, 3, 57, 3, -1, 1),
    Sketcher.Constraint("Symmetric", 27, 3, 59, 3, -1, 1),
    Sketcher.Constraint("Symmetric", 29, 3, 61, 3, -1, 1),
    Sketcher.Constraint("Symmetric", 31, 3, 63, 3, -1, 1),
    Sketcher.Constraint("Symmetric", 1, 3, 3, 3, -2),
    Sketcher.Constraint("Symmetric", 31, 3, 37, 3, -2),
    Sketcher.Constraint("Symmetric", 29, 3, 39, 3, -2),
    Sketcher.Constraint("Symmetric", 27, 3, 41, 3, -2),
    Sketcher.Constraint("Symmetric", 25, 3, 43, 3, -2),
    Sketcher.Constraint("Symmetric", 23, 3, 45, 3, -2),
    Sketcher.Constraint("Symmetric", 21, 3, 47, 3, -2),
    Sketcher.Constraint("Symmetric", 19, 3, 49, 3, -2),
    Sketcher.Constraint("Perpendicular", 0, 16),
    Sketcher.Constraint("Perpendicular", 4, 20),
    Sketcher.Constraint("Perpendicular", 8, 24),
    Sketcher.Constraint("Perpendicular", 12, 28),
    Sketcher.Constraint("Perpendicular", 16, 32),
    Sketcher.Constraint("Perpendicular", 20, 36),
    Sketcher.Constraint("Perpendicular", 24, 40),
    Sketcher.Constraint("Perpendicular", 28, 44),
    Sketcher.Constraint("Perpendicular", 32, 48),
    Sketcher.Constraint("Perpendicular", 36, 52),
    Sketcher.Constraint("Perpendicular", 40, 56),
    Sketcher.Constraint("Perpendicular", 44, 60),
    Sketcher.Constraint("Horizontal", 0, 2, 3, 2),
    Sketcher.Constraint("Horizontal", 32, 2, 35, 2),
    Sketcher.Constraint("Horizontal", 31, 2, 36, 2),
    Sketcher.Constraint("Horizontal", 28, 2, 39, 2),
    Sketcher.Constraint("Horizontal", 27, 2, 40, 2),
    Sketcher.Constraint("Horizontal", 24, 2, 43, 2),
    Sketcher.Constraint("Horizontal", 20, 2, 47, 2),
    Sketcher.Constraint("Horizontal", 16, 2, 51, 2),
    Sketcher.Constraint("Horizontal", 12, 2, 55, 2),
    Sketcher.Constraint("Horizontal", 8, 2, 59, 2),
    Sketcher.Constraint("Vertical", 16, 2, 19, 2),
    Sketcher.Constraint("Vertical", 12, 2, 23, 2),
    Sketcher.Constraint("Vertical", 8, 2, 27, 2),
    Sketcher.Constraint("Vertical", 4, 2, 31, 2),
    Sketcher.Constraint("Equal", 4, 8),
    Sketcher.Constraint("Equal", 8, 12),
    Sketcher.Constraint("Equal", 12, 16),
    Sketcher.Constraint("Radius", 1, 1.92),
    Sketcher.Constraint("Radius", 2, 4.049),
    Sketcher.Constraint("Angle", 0, Q("168.75 deg")),
    Sketcher.Constraint("Angle", 8, Q("-146.25 deg")),
    Sketcher.Constraint("DistanceX", -1, 1, 1, 3, 2.231002),
    Sketcher.Constraint("DistanceY", -1, 1, 17, 3, 2.231002),
    Sketcher.Constraint("DistanceY", -1, 1, 5, 3, 4.4755),
    Sketcher.Constraint("DistanceX", 9, 3, -1, 1, 1.194398),
    Sketcher.Constraint("DistanceY", -1, 1, 11, 3, 1.194398),
    Sketcher.Constraint("DistanceX", 15, 3, -1, 1, 4.4755),
    Sketcher.Constraint("DistanceX", 5, 2, -1, 1, 1.254199),
    Sketcher.Constraint("DistanceY", -1, 1, 14, 2, 1.254199),
    Sketcher.Constraint("Distance", 0, 0.274861),
    Sketcher.Constraint("DistanceY", -1, 1, 9, 3, 4.349511),
    Sketcher.Constraint("DistanceX", 11, 3, -1, 1, 4.349511),
    Sketcher.Constraint("DistanceY", -1, 1, 6, 2, 3.609111),
    Sketcher.Constraint("DistanceX", 7, 2, -1, 1, 2.884838),
    Sketcher.Constraint("DistanceX", 11, 2, -1, 1, 4.412129),
    Sketcher.Constraint("DistanceX", 13, 2, -1, 1, 3.609111),
    Sketcher.Constraint("DistanceY", -1, 1, 1, 3, 3.920136),
    Sketcher.Constraint("DistanceX", 17, 3, -1, 1, 3.920136),
])
pocket1 = body.newObject("PartDesign::Pocket", "Pocket")
pocket1.Profile = sketch2
pocket1.Type = "ThroughAll"
pocket1.Midplane = True

# Sketch on XY plane
sketch3 = body.newObject("Sketcher::SketchObject", "Sketch002")
sketch3.AttachmentSupport = (doc.getObject("XY_Plane"), [""])
sketch3.MapMode = "FlatFace"
sketch3.addGeometry([
    Part.LineSegment(V(2.733871, 18.235294, 0), V(7.558265, 7.558265, 0)),  # 0
    Part.LineSegment(V(7.558265, 7.558265, 0), V(18.235294, 2.733871, 0)),  # 1
    Part.ArcOfCircle(Part.Circle(V(17, 0, 0), V(0, 0, 1), 3), math.radians(-65.684261), math.radians(65.684261)),  # 2
    Part.LineSegment(V(18.235294, -2.733871, 0), V(7.558265, -7.558265, 0)),  # 3
    Part.LineSegment(V(7.558265, -7.558265, 0), V(2.733871, -18.235294, 0)),  # 4
    Part.ArcOfCircle(Part.Circle(V(0, -17, 0), V(0, 0, 1), 3), math.radians(-155.684261), math.radians(-24.315739)),  # 5
    Part.LineSegment(V(-2.733871, -18.235294, 0), V(-7.558265, -7.558265, 0)),  # 6
    Part.LineSegment(V(-7.558265, -7.558265, 0), V(-18.235294, -2.733871, 0)),  # 7
    Part.ArcOfCircle(Part.Circle(V(-17, 0, 0), V(0, 0, 1), 3), math.radians(114.315739), math.radians(245.684261)),  # 8
    Part.LineSegment(V(-18.235294, 2.733871, 0), V(-7.558265, 7.558265, 0)),  # 9
    Part.LineSegment(V(-7.558265, 7.558265, 0), V(-2.733871, 18.235294, 0)),  # 10
    Part.ArcOfCircle(Part.Circle(V(0, 17, 0), V(0, 0, 1), 3), math.radians(24.315739), math.radians(155.684261)),  # 11
    Part.Circle(V(0, -17, 0), V(0, 0, 1), 1.5),  # 12
    Part.Circle(V(17, 0, 0), V(0, 0, 1), 1.5),  # 13
    Part.Circle(V(0, 0, 0), V(0, 0, 1), 10),  # 14
    Part.Circle(V(-17, 0, 0), V(0, 0, 1), 1.5),  # 15
    Part.Circle(V(0, 17, 0), V(0, 0, 1), 1.5),  # 16
], False)
sketch3.addConstraint([
    Sketcher.Constraint("Coincident", 0, 2, 1, 1),
    Sketcher.Constraint("Tangent", 1, 2, 2, 2),
    Sketcher.Constraint("Tangent", 2, 1, 3, 1),
    Sketcher.Constraint("Coincident", 3, 2, 4, 1),
    Sketcher.Constraint("Tangent", 4, 2, 5, 2),
    Sketcher.Constraint("Tangent", 5, 1, 6, 1),
    Sketcher.Constraint("Coincident", 6, 2, 7, 1),
    Sketcher.Constraint("Tangent", 7, 2, 8, 2),
    Sketcher.Constraint("Tangent", 8, 1, 9, 1),
    Sketcher.Constraint("Coincident", 9, 2, 10, 1),
    Sketcher.Constraint("Tangent", 10, 2, 11, 2),
    Sketcher.Constraint("Tangent", 11, 1, 0, 1),
    Sketcher.Constraint("Coincident", 14, 3, -1, 1),
    Sketcher.Constraint("Coincident", 12, 3, 5, 3),
    Sketcher.Constraint("Coincident", 13, 3, 2, 3),
    Sketcher.Constraint("Coincident", 15, 3, 8, 3),
    Sketcher.Constraint("Coincident", 16, 3, 11, 3),
    Sketcher.Constraint("Equal", 2, 5),
    Sketcher.Constraint("Equal", 5, 8),
    Sketcher.Constraint("Equal", 8, 11),
    Sketcher.Constraint("Equal", 12, 13),
    Sketcher.Constraint("Equal", 13, 15),
    Sketcher.Constraint("Equal", 15, 16),
    Sketcher.Constraint("Symmetric", 2, 3, 8, 3, -1, 1),
    Sketcher.Constraint("Symmetric", 5, 3, 11, 3, -1, 1),
    Sketcher.Constraint("Symmetric", 0, 2, 6, 2, -1, 1),
    Sketcher.Constraint("Symmetric", 3, 2, 9, 2, -1, 1),
    Sketcher.Constraint("Symmetric", 4, 2, 5, 1, -2),
    Sketcher.Constraint("Symmetric", 2, 1, 7, 2, -2),
    Sketcher.Constraint("Perpendicular", 0, 3),
    Sketcher.Constraint("Equal", 0, 1),
    Sketcher.Constraint("Diameter", 12, 3.0),
    Sketcher.Constraint("Diameter", 14, 20.0),
    Sketcher.Constraint("Radius", 2, 3.0),
    Sketcher.Constraint("DistanceX", -1, 1, 2, 3, 17.0),
    Sketcher.Constraint("DistanceY", -1, 1, 1, 2, 2.733871),
])
pad2 = body.newObject("PartDesign::Pad", "Pad001")
pad2.Profile = sketch3
pad2.Length = 5

doc.recompute()
